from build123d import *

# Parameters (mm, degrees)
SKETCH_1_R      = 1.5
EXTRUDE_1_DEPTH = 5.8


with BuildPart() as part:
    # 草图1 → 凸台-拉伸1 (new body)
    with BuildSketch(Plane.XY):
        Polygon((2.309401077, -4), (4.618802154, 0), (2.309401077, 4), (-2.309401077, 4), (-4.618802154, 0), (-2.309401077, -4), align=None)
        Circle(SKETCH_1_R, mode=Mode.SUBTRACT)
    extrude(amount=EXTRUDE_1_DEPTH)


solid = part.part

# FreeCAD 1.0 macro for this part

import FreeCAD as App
import Part
import Sketcher
from FreeCAD import Vector
Q = App.Units.Quantity

doc = App.newDocument("Part")
body = doc.addObject("PartDesign::Body", "Body")

# Sketch on XY plane
sketch1 = body.newObject("Sketcher::SketchObject", "Sketch")
sketch1.AttachmentSupport = (doc.getObject("XY_Plane"), [""])
sketch1.MapMode = "FlatFace"
sketch1.addGeometry([
    Part.LineSegment(Vector(2.3, -4, 0), Vector(4.6, 0, 0)),  # 0
    Part.LineSegment(Vector(4.6, 0, 0), Vector(2.3, 4, 0)),  # 1
    Part.LineSegment(Vector(2.3, 4, 0), Vector(-2.3, 4, 0)),  # 2
    Part.LineSegment(Vector(-2.3, 4, 0), Vector(-4.6, 0, 0)),  # 3
    Part.LineSegment(Vector(-4.6, 0, 0), Vector(-2.3, -4, 0)),  # 4
    Part.LineSegment(Vector(-2.3, -4, 0), Vector(2.3, -4, 0)),  # 5
    Part.Circle(Vector(0, 0, 0), Vector(0, 0, 1), 1.5),  # 6
], False)
sketch1.addConstraint([
    Sketcher.Constraint("Coincident", 0, 2, 1, 1),
    Sketcher.Constraint("Coincident", 1, 2, 2, 1),
    Sketcher.Constraint("Coincident", 2, 2, 3, 1),
    Sketcher.Constraint("Coincident", 3, 2, 4, 1),
    Sketcher.Constraint("Coincident", 4, 2, 5, 1),
    Sketcher.Constraint("Coincident", 5, 2, 0, 1),
    Sketcher.Constraint("Horizontal", 2),
    Sketcher.Constraint("Horizontal", 5),
    Sketcher.Constraint("Coincident", 6, 3, -1, 1),
    Sketcher.Constraint("Symmetric", 0, 2, 3, 2, -1, 1),
    Sketcher.Constraint("Symmetric", 1, 2, 4, 2, -1, 1),
    Sketcher.Constraint("PointOnObject", 0, 2, -1),
    Sketcher.Constraint("Parallel", 0, 3),
    Sketcher.Constraint("Vertical", 2, 2, 4, 2),
    Sketcher.Constraint("Diameter", 6, Q("3 mm")),
    Sketcher.Constraint("Angle", 0, Q("60 deg")),
    Sketcher.Constraint("DistanceY", -1, 1, 1, 2, Q("4 mm")),
    Sketcher.Constraint("DistanceX", -1, 1, 1, 2, Q("2.309401 mm")),
])
pad1 = body.newObject("PartDesign::Pad", "Pad")
pad1.Profile = sketch1
pad1.Length = 5.8

doc.recompute()
